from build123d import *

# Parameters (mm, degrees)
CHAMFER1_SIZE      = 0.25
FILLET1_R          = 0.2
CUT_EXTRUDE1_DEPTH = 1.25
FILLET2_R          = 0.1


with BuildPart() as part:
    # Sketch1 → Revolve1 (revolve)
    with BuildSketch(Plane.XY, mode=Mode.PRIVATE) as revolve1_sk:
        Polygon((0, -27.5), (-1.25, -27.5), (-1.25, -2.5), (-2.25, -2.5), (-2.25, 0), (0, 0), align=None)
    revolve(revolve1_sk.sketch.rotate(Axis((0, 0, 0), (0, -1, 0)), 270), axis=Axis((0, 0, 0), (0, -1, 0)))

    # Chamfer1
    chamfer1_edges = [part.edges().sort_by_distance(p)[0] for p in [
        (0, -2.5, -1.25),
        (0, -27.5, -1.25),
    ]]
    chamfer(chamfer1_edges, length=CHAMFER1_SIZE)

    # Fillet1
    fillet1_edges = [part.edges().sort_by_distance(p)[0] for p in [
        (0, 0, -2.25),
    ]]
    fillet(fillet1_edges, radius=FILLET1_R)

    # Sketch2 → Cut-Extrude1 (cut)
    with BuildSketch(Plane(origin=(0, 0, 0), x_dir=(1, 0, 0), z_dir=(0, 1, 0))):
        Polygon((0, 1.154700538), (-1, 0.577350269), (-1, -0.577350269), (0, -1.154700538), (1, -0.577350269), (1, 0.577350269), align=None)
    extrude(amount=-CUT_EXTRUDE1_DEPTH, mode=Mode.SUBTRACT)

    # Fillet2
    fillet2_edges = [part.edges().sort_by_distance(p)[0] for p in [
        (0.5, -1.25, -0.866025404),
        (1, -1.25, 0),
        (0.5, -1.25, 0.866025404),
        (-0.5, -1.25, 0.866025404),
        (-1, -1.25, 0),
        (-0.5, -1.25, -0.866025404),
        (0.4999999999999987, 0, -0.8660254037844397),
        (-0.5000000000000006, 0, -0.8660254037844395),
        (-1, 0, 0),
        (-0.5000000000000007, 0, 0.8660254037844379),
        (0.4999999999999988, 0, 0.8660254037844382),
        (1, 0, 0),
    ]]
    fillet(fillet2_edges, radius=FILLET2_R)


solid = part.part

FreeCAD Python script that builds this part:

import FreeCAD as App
import Part
import Sketcher
from FreeCAD import Vector
Q = App.Units.Quantity


def edges_at(feature, points):
    """Names of the edges that pass closest to the given points."""
    edges = feature.Shape.Edges
    near = lambda p: min(range(len(edges)), key=lambda i: edges[i].distToShape(Part.Vertex(*p))[0])
    return sorted({f"Edge{near(p) + 1}" for p in points})

doc = App.newDocument("Part")
body = doc.addObject("PartDesign::Body", "Body")

# Sketch on XY plane
sketch1 = body.newObject("Sketcher::SketchObject", "Sketch")
sketch1.AttachmentSupport = (doc.getObject("XY_Plane"), [""])
sketch1.MapMode = "FlatFace"
sketch1.addGeometry(Part.LineSegment(Vector(-1.25, -27.5, 0), Vector(0, -27.5, 0)), False)
sketch1.addGeometry(Part.LineSegment(Vector(0, -27.5, 0), Vector(0, 0, 0)), False)
sketch1.addGeometry(Part.LineSegment(Vector(0, 0, 0), Vector(-2.25, 0, 0)), False)
sketch1.addGeometry(Part.LineSegment(Vector(-2.25, 0, 0), Vector(-2.25, -2.5, 0)), False)
sketch1.addGeometry(Part.LineSegment(Vector(-2.25, -2.5, 0), Vector(-1.25, -2.5, 0)), False)
sketch1.addGeometry(Part.LineSegment(Vector(-1.25, -2.5, 0), Vector(-1.25, -27.5, 0)), False)
sketch1.addConstraint(Sketcher.Constraint("Coincident", 0, 2, 1, 1))
sketch1.addConstraint(Sketcher.Constraint("Coincident", 1, 2, 2, 1))
sketch1.addConstraint(Sketcher.Constraint("Coincident", 2, 2, 3, 1))
sketch1.addConstraint(Sketcher.Constraint("Coincident", 3, 2, 4, 1))
sketch1.addConstraint(Sketcher.Constraint("Coincident", 4, 2, 5, 1))
sketch1.addConstraint(Sketcher.Constraint("Coincident", 5, 2, 0, 1))
sketch1.addConstraint(Sketcher.Constraint("Horizontal", 0))
sketch1.addConstraint(Sketcher.Constraint("Vertical", 1))
sketch1.addConstraint(Sketcher.Constraint("Horizontal", 2))
sketch1.addConstraint(Sketcher.Constraint("Vertical", 3))
sketch1.addConstraint(Sketcher.Constraint("Horizontal", 4))
sketch1.addConstraint(Sketcher.Constraint("Vertical", 5))
sketch1.addConstraint(Sketcher.Constraint("Coincident", 1, 2, -1, 1))
sketch1.addConstraint(Sketcher.Constraint("DistanceX", 4, 1, 4, 2, Q("1 mm")))
sketch1.addConstraint(Sketcher.Constraint("DistanceY", 5, 2, 5, 1, Q("25 mm")))
sketch1.addConstraint(Sketcher.Constraint("DistanceY", 1, 1, 1, 2, Q("27.5 mm")))
sketch1.addConstraint(Sketcher.Constraint("DistanceX", 0, 1, 0, 2, Q("1.25 mm")))
revolution = body.newObject("PartDesign::Revolution", "Revolution")
revolution.Profile = sketch1
revolution.ReferenceAxis = (sketch1, ["V_Axis"])
revolution.Angle = 360
doc.recompute()

chamfer = body.newObject("PartDesign::Chamfer", "Chamfer")
chamfer.Base = (revolution, edges_at(revolution, [(0, -2.5, -1.25), (0, -27.5, -1.25)]))
chamfer.Size = 0.25
doc.recompute()

fillet = body.newObject("PartDesign::Fillet", "Fillet")
fillet.Base = (chamfer, edges_at(chamfer, [(0, 0, -2.25)]))
fillet.Radius = 0.2

# Sketch on XZ plane
sketch2 = body.newObject("Sketcher::SketchObject", "Sketch001")
sketch2.AttachmentSupport = (doc.getObject("XZ_Plane"), [""])
sketch2.MapMode = "FlatFace"
sketch2.addGeometry(Part.LineSegment(Vector(0, -1.154701, 0), Vector(-1, -0.57735, 0)), False)
sketch2.addGeometry(Part.LineSegment(Vector(-1, -0.57735, 0), Vector(-1, 0.57735, 0)), False)
sketch2.addGeometry(Part.LineSegment(Vector(-1, 0.57735, 0), Vector(0, 1.154701, 0)), False)
sketch2.addGeometry(Part.LineSegment(Vector(0, 1.154701, 0), Vector(1, 0.57735, 0)), False)
sketch2.addGeometry(Part.LineSegment(Vector(1, 0.57735, 0), Vector(1, -0.57735, 0)), False)
sketch2.addGeometry(Part.LineSegment(Vector(1, -0.57735, 0), Vector(0, -1.154701, 0)), False)
sketch2.addConstraint(Sketcher.Constraint("Coincident", 0, 2, 1, 1))
sketch2.addConstraint(Sketcher.Constraint("Coincident", 1, 2, 2, 1))
sketch2.addConstraint(Sketcher.Constraint("Coincident", 2, 2, 3, 1))
sketch2.addConstraint(Sketcher.Constraint("Coincident", 3, 2, 4, 1))
sketch2.addConstraint(Sketcher.Constraint("Coincident", 4, 2, 5, 1))
sketch2.addConstraint(Sketcher.Constraint("Coincident", 5, 2, 0, 1))
sketch2.addConstraint(Sketcher.Constraint("Vertical", 1))
sketch2.addConstraint(Sketcher.Constraint("Vertical", 4))
sketch2.addConstraint(Sketcher.Constraint("Symmetric", 0, 2, 3, 2, -1, 1))
sketch2.addConstraint(Sketcher.Constraint("Symmetric", 2, 2, 5, 2, -1, 1))
sketch2.addConstraint(Sketcher.Constraint("PointOnObject", 2, 2, -2))
sketch2.addConstraint(Sketcher.Constraint("Parallel", 2, 5))
sketch2.addConstraint(Sketcher.Constraint("Horizontal", 1, 2, 3, 2))
sketch2.addConstraint(Sketcher.Constraint("Angle", 0, Q("150 deg")))
sketch2.addConstraint(Sketcher.Constraint("DistanceX", 0, 2, -1, 1, Q("1 mm")))
sketch2.addConstraint(Sketcher.Constraint("DistanceY", 1, 1, 1, 2, Q("1.154701 mm")))
pocket1 = body.newObject("PartDesign::Pocket", "Pocket")
pocket1.Profile = sketch2
pocket1.Length = 1.25
pocket1.Reversed = True
doc.recompute()

fillet2 = body.newObject("PartDesign::Fillet", "Fillet001")
fillet2.Base = (pocket1, edges_at(pocket1, [
    (0.5, -1.25, -0.866),
    (1, -1.25, 0),
    (0.5, -1.25, 0.866),
    (-0.5, -1.25, 0.866),
    (-1, -1.25, 0),
    (-0.5, -1.25, -0.866),
    (0.5, 0, -0.866),
    (-0.5, 0, -0.866),
    (-1, 0, 0),
    (-0.5, 0, 0.866),
    (0.5, 0, 0.866),
    (1, 0, 0),
]))
fillet2.Radius = 0.1

doc.recompute()
